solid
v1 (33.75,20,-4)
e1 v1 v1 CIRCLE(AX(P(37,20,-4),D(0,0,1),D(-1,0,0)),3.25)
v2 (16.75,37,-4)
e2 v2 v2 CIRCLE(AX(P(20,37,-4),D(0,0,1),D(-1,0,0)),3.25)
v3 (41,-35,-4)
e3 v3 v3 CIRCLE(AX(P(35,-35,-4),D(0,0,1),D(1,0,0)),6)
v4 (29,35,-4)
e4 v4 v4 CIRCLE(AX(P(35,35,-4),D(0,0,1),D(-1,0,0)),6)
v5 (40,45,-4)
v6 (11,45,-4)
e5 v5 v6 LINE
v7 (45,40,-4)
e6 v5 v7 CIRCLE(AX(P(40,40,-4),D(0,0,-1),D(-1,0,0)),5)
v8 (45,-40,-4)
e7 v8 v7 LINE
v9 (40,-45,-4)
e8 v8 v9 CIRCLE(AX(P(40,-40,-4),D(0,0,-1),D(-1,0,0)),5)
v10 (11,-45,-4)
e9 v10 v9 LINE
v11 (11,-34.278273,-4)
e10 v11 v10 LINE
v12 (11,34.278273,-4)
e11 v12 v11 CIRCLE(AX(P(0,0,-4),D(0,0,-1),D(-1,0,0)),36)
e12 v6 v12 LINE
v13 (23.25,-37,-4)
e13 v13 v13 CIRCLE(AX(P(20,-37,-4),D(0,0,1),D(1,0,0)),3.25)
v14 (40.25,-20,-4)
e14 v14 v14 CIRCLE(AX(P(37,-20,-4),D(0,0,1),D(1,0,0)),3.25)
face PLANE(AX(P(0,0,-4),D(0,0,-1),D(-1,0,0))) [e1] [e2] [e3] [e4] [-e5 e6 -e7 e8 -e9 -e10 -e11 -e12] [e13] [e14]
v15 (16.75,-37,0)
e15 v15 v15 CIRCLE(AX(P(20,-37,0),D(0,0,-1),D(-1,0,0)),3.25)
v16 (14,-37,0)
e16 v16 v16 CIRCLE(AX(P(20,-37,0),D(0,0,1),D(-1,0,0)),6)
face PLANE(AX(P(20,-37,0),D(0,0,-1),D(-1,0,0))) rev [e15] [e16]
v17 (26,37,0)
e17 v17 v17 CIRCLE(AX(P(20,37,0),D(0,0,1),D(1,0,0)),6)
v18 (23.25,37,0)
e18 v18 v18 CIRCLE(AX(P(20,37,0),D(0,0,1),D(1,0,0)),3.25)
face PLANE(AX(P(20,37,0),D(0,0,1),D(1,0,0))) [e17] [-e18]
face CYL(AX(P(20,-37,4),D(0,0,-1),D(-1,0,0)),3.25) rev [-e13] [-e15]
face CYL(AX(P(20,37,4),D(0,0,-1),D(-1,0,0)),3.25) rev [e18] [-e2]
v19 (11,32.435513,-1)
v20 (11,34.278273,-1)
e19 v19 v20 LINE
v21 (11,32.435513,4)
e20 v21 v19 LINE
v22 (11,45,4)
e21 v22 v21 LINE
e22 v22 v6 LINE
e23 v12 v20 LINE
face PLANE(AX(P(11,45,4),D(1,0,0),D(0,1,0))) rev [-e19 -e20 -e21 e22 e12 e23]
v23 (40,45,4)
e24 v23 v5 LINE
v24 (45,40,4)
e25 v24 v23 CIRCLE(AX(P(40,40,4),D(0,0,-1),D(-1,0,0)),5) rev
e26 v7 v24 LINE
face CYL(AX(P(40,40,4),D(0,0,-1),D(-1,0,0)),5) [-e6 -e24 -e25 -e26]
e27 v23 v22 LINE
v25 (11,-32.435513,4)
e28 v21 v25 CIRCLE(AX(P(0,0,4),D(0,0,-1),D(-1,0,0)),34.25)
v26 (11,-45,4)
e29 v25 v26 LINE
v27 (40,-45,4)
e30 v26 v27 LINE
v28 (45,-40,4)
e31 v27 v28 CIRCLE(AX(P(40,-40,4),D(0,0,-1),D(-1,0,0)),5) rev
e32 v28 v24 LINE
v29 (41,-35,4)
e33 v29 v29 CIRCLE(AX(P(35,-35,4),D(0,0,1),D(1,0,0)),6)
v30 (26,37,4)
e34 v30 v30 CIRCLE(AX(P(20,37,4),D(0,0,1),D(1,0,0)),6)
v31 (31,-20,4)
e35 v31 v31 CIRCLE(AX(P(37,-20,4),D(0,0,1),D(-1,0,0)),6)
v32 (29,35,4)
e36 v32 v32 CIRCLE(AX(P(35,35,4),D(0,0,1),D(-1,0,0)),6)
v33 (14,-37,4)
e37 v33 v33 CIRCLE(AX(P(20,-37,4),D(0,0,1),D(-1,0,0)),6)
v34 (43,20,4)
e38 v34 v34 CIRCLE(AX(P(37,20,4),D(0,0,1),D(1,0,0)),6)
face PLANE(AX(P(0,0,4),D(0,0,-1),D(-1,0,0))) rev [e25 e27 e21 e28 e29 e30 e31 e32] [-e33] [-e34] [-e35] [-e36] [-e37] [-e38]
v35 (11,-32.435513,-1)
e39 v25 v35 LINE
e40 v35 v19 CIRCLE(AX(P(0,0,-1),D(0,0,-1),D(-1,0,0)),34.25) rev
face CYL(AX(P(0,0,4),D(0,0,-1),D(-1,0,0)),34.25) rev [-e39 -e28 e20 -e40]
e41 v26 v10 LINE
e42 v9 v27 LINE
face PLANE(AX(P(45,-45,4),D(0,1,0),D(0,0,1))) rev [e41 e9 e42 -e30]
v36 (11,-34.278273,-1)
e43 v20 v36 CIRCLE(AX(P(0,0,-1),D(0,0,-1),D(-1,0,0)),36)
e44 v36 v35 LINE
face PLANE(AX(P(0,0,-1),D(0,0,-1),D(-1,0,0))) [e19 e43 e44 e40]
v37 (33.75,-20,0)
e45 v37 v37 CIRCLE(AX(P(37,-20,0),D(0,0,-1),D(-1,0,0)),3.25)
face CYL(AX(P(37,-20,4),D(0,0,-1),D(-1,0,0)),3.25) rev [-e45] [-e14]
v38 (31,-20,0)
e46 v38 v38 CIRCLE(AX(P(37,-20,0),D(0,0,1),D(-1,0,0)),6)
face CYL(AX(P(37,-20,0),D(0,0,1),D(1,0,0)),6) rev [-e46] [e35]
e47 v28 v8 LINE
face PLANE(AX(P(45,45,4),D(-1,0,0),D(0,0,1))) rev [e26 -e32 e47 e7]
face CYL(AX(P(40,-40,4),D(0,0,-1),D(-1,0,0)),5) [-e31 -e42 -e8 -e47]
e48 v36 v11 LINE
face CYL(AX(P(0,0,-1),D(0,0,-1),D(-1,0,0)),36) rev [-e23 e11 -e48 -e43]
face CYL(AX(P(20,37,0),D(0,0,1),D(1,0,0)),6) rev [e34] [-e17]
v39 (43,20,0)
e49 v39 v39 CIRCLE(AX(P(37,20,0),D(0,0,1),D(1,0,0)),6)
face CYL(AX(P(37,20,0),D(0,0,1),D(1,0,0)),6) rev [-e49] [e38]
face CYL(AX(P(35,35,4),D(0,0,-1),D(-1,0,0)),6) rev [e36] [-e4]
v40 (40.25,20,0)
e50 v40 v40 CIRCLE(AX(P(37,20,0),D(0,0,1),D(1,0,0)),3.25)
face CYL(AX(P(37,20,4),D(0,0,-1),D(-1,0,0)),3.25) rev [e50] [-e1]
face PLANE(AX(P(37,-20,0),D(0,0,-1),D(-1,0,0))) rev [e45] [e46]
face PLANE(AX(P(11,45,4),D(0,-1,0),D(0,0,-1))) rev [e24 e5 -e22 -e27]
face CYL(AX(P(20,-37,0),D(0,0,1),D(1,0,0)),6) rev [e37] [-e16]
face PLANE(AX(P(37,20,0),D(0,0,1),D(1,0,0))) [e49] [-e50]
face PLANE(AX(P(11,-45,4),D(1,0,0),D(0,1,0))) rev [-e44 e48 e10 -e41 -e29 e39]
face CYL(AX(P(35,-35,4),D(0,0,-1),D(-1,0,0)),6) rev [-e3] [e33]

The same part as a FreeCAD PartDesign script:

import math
import FreeCAD as App
import Part
import Sketcher

V = App.Vector
Q = App.Units.Quantity


def edges_at(feature, points):
    """Names of the edges that pass closest to the given points."""
    edges = feature.Shape.Edges
    near = lambda p: min(range(len(edges)), key=lambda i: edges[i].distToShape(Part.Vertex(*p))[0])
    return sorted({f"Edge{near(p) + 1}" for p in points})

doc = App.newDocument("Part")
body = doc.addObject("PartDesign::Body", "Body")

# Sketch on XY plane
sketch1 = doc.addObject("Sketcher::SketchObject", "Sketch")
body.addObject(sketch1)
sketch1.AttachmentSupport = (doc.XY_Plane, [""])
sketch1.MapMode = "FlatFace"
sketch1.addGeometry([
    Part.LineSegment(V(11, -45, 0), V(45, -45, 0)),  # 0
    Part.LineSegment(V(45, -45, 0), V(45, 45, 0)),  # 1
    Part.LineSegment(V(45, 45, 0), V(11, 45, 0)),  # 2
    Part.LineSegment(V(11, 45, 0), V(11, 32.4, 0)),  # 3
    Part.ArcOfCircle(Part.Circle(V(0, 0, 0), V(0, 0, 1), 34.2), math.radians(-71), math.radians(71)),  # 4
    Part.LineSegment(V(11, -32.4, 0), V(11, -45, 0)),  # 5
    Part.Circle(V(35, -35, 0), V(0, 0, 1), 6),  # 6
    Part.Circle(V(37, -20, 0), V(0, 0, 1), 3.2),  # 7
    Part.Circle(V(20, -37, 0), V(0, 0, 1), 3.2),  # 8
    Part.Circle(V(37, 20, 0), V(0, 0, 1), 3.2),  # 9
    Part.Circle(V(35, 35, 0), V(0, 0, 1), 6),  # 10
    Part.Circle(V(20, 37, 0), V(0, 0, 1), 3.2),  # 11
], False)
sketch1.addConstraint([
    Sketcher.Constraint("Coincident", 0, 2, 1, 1),
    Sketcher.Constraint("Coincident", 1, 2, 2, 1),
    Sketcher.Constraint("Coincident", 2, 2, 3, 1),
    Sketcher.Constraint("Coincident", 3, 2, 4, 2),
    Sketcher.Constraint("Coincident", 4, 1, 5, 1),
    Sketcher.Constraint("Coincident", 5, 2, 0, 1),
    Sketcher.Constraint("Horizontal", 0),
    Sketcher.Constraint("Vertical", 1),
    Sketcher.Constraint("Horizontal", 2),
    Sketcher.Constraint("Vertical", 3),
    Sketcher.Constraint("Vertical", 5),
    Sketcher.Constraint("Coincident", 4, 3, -1, 1),
    Sketcher.Constraint("Equal", 7, 8),
    Sketcher.Constraint("Equal", 8, 9),
    Sketcher.Constraint("Equal", 6, 10),
    Sketcher.Constraint("Equal", 9, 11),
    Sketcher.Constraint("Symmetric", 7, 3, 9, 3, -1),
    Sketcher.Constraint("Symmetric", 6, 3, 10, 3, -1),
    Sketcher.Constraint("Symmetric", 8, 3, 11, 3, -1),
    Sketcher.Constraint("Symmetric", 2, 2, 5, 2, -1),
    Sketcher.Constraint("Diameter", 6, Q("12 mm")),
    Sketcher.Constraint("Diameter", 7, Q("6.5 mm")),
    Sketcher.Constraint("DistanceX", 0, 1, 0, 2, Q("34 mm")),
    Sketcher.Constraint("DistanceY", 1, 1, 1, 2, Q("90 mm")),
    Sketcher.Constraint("Radius", 4, Q("34.25 mm")),
    Sketcher.Constraint("DistanceX", -1, 1, 6, 3, Q("35 mm")),
    Sketcher.Constraint("DistanceY", 6, 3, -1, 1, Q("35 mm")),
    Sketcher.Constraint("DistanceX", -1, 1, 7, 3, Q("37 mm")),
    Sketcher.Constraint("DistanceY", 7, 3, -1, 1, Q("20 mm")),
    Sketcher.Constraint("DistanceX", -1, 1, 8, 3, Q("20 mm")),
    Sketcher.Constraint("DistanceY", 8, 3, -1, 1, Q("37 mm")),
    Sketcher.Constraint("DistanceX", -1, 1, 0, 2, Q("45 mm")),
])
pad1 = doc.addObject("PartDesign::Pad", "Pad")
body.addObject(pad1)
pad1.Profile = sketch1
pad1.Length = 8
pad1.Midplane = True

# Sketch on XY plane
sketch2 = doc.addObject("Sketcher::SketchObject", "Sketch001")
body.addObject(sketch2)
sketch2.AttachmentSupport = (doc.XY_Plane, [""])
sketch2.MapMode = "FlatFace"
sketch2.AttachmentOffset = App.Placement(V(0, 0, -4), App.Rotation())
sketch2.addGeometry(Part.Circle(V(0, 0, 0), V(0, 0, 1), 36), False)
sketch2.addConstraint([
    Sketcher.Constraint("Coincident", 0, 3, -1, 1),
    Sketcher.Constraint("Diameter", 0, Q("72 mm")),
])
pocket1 = doc.addObject("PartDesign::Pocket", "Pocket")
body.addObject(pocket1)
pocket1.Profile = sketch2
pocket1.Length = 3
pocket1.Reversed = True
doc.recompute()

fillet = doc.addObject("PartDesign::Fillet", "Fillet")
body.addObject(fillet)
fillet.Base = (pocket1, edges_at(pocket1, [(45, 45, 0), (45, -45, 0)]))
fillet.Radius = 5

# Sketch on XY plane
sketch3 = doc.addObject("Sketcher::SketchObject", "Sketch002")
body.addObject(sketch3)
sketch3.AttachmentSupport = (doc.XY_Plane, [""])
sketch3.MapMode = "FlatFace"
sketch3.AttachmentOffset = App.Placement(V(0, 0, 4), App.Rotation())
sketch3.addGeometry([
    Part.Circle(V(20, 37, 0), V(0, 0, 1), 6),
    Part.Circle(V(37, 20, 0), V(0, 0, 1), 6),
    Part.Circle(V(20, -37, 0), V(0, 0, 1), 6),
    Part.Circle(V(37, -20, 0), V(0, 0, 1), 6),
], False)
sketch3.addConstraint([
    Sketcher.Constraint("Equal", 0, 1),
    Sketcher.Constraint("Equal", 1, 2),
    Sketcher.Constraint("Equal", 2, 3),
    Sketcher.Constraint("Symmetric", 0, 3, 2, 3, -1),
    Sketcher.Constraint("Symmetric", 1, 3, 3, 3, -1),
    Sketcher.Constraint("Diameter", 0, Q("12 mm")),
    Sketcher.Constraint("DistanceX", -1, 1, 0, 3, Q("20 mm")),
    Sketcher.Constraint("DistanceY", -1, 1, 0, 3, Q("37 mm")),
    Sketcher.Constraint("DistanceX", -1, 1, 1, 3, Q("37 mm")),
    Sketcher.Constraint("DistanceY", -1, 1, 1, 3, Q("20 mm")),
])
pocket2 = doc.addObject("PartDesign::Pocket", "Pocket001")
body.addObject(pocket2)
pocket2.Profile = sketch3
pocket2.Length = 4

doc.recompute()
